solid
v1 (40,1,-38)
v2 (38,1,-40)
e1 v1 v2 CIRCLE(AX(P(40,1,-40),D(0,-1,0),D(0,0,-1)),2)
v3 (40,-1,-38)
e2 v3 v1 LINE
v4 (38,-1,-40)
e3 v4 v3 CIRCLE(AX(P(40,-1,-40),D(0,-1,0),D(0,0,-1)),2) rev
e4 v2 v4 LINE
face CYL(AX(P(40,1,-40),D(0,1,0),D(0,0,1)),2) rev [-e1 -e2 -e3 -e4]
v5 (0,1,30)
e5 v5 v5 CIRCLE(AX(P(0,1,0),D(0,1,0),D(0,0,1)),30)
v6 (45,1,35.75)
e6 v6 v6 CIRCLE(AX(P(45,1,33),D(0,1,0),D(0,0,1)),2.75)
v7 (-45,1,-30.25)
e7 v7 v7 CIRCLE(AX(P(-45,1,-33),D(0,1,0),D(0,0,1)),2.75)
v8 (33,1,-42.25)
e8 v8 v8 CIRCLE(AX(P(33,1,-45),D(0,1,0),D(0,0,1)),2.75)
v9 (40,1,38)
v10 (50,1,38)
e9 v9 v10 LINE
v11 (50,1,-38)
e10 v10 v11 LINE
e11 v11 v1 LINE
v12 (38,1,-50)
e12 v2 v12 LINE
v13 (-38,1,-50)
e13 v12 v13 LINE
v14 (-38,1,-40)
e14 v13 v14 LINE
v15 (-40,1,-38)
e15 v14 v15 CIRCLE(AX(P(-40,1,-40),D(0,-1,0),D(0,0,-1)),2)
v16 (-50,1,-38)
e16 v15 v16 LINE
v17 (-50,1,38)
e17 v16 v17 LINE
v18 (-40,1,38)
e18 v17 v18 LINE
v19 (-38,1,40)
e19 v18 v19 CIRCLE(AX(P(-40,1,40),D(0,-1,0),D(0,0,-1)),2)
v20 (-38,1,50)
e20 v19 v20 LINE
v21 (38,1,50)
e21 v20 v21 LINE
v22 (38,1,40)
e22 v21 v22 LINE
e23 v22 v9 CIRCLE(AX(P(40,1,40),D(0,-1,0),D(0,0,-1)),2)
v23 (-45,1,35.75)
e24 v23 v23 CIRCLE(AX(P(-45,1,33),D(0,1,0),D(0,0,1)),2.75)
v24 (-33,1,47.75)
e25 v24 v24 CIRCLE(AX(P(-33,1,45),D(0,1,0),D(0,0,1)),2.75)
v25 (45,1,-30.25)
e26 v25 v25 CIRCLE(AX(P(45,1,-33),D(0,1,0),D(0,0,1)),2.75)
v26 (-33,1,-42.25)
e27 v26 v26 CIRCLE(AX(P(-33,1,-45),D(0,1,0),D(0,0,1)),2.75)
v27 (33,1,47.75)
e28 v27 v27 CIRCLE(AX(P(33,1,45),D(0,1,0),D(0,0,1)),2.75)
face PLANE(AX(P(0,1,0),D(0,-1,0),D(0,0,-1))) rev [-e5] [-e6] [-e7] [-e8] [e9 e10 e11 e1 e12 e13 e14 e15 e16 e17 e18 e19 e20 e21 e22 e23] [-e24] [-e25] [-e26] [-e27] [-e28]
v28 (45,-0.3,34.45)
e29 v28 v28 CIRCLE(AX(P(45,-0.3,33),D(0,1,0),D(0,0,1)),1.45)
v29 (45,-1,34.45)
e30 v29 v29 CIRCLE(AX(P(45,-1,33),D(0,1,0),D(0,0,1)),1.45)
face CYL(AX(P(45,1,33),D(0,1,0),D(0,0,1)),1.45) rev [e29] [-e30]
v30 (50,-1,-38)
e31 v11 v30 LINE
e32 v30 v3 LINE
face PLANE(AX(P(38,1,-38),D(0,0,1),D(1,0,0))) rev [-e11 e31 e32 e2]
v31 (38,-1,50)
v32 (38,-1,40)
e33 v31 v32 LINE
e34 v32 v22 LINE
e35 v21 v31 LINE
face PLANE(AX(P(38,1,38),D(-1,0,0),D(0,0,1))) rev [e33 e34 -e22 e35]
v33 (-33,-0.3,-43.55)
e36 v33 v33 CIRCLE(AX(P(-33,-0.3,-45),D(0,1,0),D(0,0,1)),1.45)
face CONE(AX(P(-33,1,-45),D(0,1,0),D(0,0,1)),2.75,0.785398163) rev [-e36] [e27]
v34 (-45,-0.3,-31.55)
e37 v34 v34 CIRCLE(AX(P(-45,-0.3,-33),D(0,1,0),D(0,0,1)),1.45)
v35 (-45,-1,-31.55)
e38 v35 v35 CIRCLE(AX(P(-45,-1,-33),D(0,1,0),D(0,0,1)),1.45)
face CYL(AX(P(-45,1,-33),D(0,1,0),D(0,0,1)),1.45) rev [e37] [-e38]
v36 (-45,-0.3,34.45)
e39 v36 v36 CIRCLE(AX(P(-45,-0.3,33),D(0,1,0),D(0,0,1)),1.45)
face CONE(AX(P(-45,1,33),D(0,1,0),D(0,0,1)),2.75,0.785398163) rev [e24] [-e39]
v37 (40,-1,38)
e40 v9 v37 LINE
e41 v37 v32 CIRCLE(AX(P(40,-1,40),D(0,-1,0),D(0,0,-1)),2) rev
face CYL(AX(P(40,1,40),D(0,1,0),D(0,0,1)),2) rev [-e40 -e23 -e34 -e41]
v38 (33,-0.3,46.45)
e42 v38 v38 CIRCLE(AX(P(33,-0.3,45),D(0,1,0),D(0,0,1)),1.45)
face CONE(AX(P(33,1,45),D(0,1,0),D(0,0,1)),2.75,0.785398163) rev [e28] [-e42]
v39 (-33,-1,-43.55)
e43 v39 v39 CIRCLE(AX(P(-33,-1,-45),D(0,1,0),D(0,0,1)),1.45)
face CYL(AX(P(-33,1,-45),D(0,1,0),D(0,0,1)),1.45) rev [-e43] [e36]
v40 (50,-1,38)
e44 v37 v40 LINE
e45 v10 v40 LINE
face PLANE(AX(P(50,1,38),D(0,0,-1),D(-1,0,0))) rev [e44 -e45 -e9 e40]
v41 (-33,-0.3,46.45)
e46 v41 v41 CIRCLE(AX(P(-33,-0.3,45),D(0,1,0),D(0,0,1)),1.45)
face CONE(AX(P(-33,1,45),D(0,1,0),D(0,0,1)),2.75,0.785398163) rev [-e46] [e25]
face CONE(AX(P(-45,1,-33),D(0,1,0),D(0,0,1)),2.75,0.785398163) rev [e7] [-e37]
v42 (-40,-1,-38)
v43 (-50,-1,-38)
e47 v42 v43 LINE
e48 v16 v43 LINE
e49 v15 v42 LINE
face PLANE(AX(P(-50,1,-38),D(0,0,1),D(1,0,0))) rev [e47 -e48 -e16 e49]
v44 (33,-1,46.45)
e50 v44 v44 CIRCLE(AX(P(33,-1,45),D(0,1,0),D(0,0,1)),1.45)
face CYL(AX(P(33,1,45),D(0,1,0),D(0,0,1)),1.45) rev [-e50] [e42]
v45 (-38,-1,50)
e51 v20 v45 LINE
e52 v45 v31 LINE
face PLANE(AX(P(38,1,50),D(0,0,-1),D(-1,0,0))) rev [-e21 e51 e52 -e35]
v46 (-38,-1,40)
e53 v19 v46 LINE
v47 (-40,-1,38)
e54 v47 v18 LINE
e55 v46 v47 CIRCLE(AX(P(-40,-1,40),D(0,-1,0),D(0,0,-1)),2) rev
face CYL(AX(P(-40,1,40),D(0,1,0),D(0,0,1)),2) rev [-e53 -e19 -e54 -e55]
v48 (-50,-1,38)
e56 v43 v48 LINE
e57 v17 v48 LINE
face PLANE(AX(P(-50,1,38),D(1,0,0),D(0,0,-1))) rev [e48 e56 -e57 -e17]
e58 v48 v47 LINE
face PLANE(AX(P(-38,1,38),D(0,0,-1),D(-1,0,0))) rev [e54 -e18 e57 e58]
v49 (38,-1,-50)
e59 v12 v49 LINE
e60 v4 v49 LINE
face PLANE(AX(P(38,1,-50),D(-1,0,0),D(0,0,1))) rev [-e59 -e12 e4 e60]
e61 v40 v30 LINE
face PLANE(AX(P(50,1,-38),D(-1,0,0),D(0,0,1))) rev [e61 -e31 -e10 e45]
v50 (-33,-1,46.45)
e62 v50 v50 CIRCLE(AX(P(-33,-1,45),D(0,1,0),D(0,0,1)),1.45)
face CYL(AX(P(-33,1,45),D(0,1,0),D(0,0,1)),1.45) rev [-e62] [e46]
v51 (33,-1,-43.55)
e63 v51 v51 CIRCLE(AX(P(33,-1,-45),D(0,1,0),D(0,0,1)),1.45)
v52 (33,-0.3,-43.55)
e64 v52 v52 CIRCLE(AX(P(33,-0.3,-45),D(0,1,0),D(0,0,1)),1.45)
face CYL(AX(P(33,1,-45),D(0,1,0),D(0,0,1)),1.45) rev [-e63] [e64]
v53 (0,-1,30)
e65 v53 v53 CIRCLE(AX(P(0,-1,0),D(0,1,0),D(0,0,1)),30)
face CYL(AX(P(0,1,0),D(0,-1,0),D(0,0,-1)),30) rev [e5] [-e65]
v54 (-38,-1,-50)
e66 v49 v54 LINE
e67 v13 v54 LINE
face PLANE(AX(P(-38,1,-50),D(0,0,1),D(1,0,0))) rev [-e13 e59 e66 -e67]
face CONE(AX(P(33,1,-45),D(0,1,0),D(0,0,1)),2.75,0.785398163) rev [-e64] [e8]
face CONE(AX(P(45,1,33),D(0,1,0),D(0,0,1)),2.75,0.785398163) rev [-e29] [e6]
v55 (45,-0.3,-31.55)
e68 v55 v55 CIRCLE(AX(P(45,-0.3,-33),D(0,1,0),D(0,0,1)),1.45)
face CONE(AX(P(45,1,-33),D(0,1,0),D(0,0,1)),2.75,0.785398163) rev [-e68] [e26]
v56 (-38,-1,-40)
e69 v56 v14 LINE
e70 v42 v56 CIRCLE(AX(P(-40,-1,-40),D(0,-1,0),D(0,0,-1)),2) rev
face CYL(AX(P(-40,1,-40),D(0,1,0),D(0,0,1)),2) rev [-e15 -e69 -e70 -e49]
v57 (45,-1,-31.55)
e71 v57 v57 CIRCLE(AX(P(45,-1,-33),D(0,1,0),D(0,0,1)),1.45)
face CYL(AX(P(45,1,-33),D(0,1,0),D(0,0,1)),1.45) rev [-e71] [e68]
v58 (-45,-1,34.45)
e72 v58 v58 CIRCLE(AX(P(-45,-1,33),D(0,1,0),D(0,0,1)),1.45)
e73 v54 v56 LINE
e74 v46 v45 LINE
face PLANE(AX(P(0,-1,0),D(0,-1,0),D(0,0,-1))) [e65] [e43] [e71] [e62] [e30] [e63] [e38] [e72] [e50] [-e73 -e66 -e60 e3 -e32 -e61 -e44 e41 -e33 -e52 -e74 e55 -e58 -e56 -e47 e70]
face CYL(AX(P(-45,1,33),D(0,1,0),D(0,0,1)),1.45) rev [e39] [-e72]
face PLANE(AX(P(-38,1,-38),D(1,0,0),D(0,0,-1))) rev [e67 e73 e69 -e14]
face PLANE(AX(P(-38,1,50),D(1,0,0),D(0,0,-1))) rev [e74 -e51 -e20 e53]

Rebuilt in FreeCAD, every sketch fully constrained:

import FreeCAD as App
import Part
import Sketcher

V = App.Vector
Q = App.Units.Quantity


def edges_at(feature, points):
    """Names of the edges that pass closest to the given points."""
    edges = feature.Shape.Edges
    near = lambda p: min(range(len(edges)), key=lambda i: edges[i].distToShape(Part.Vertex(*p))[0])
    return sorted({f"Edge{near(p) + 1}" for p in points})

doc = App.newDocument("Part")
body = doc.addObject("PartDesign::Body", "Body")

# Sketch on XZ plane
sketch1 = doc.addObject("Sketcher::SketchObject", "Sketch")
body.addObject(sketch1)
sketch1.AttachmentSupport = (doc.XZ_Plane, [""])
sketch1.MapMode = "FlatFace"
sketch1.addGeometry(Part.LineSegment(V(-50, -38, 0), V(-50, 38, 0)), False)
sketch1.addGeometry(Part.LineSegment(V(-50, 38, 0), V(-38, 38, 0)), False)
sketch1.addGeometry(Part.LineSegment(V(-38, 38, 0), V(-38, 50, 0)), False)
sketch1.addGeometry(Part.LineSegment(V(-38, 50, 0), V(38, 50, 0)), False)
sketch1.addGeometry(Part.LineSegment(V(38, 50, 0), V(38, 38, 0)), False)
sketch1.addGeometry(Part.LineSegment(V(38, 38, 0), V(50, 38, 0)), False)
sketch1.addGeometry(Part.LineSegment(V(50, 38, 0), V(50, -38, 0)), False)
sketch1.addGeometry(Part.LineSegment(V(50, -38, 0), V(38, -38, 0)), False)
sketch1.addGeometry(Part.LineSegment(V(38, -38, 0), V(38, -50, 0)), False)
sketch1.addGeometry(Part.LineSegment(V(38, -50, 0), V(-38, -50, 0)), False)
sketch1.addGeometry(Part.LineSegment(V(-38, -50, 0), V(-38, -38, 0)), False)
sketch1.addGeometry(Part.LineSegment(V(-38, -38, 0), V(-50, -38, 0)), False)
sketch1.addGeometry(Part.Circle(V(0, 0, 0), V(0, 0, 1), 30), False)
sketch1.addConstraint(Sketcher.Constraint("Coincident", 0, 2, 1, 1))
sketch1.addConstraint(Sketcher.Constraint("Coincident", 1, 2, 2, 1))
sketch1.addConstraint(Sketcher.Constraint("Coincident", 2, 2, 3, 1))
sketch1.addConstraint(Sketcher.Constraint("Coincident", 3, 2, 4, 1))
sketch1.addConstraint(Sketcher.Constraint("Coincident", 4, 2, 5, 1))
sketch1.addConstraint(Sketcher.Constraint("Coincident", 5, 2, 6, 1))
sketch1.addConstraint(Sketcher.Constraint("Coincident", 6, 2, 7, 1))
sketch1.addConstraint(Sketcher.Constraint("Coincident", 7, 2, 8, 1))
sketch1.addConstraint(Sketcher.Constraint("Coincident", 8, 2, 9, 1))
sketch1.addConstraint(Sketcher.Constraint("Coincident", 9, 2, 10, 1))
sketch1.addConstraint(Sketcher.Constraint("Coincident", 10, 2, 11, 1))
sketch1.addConstraint(Sketcher.Constraint("Coincident", 11, 2, 0, 1))
sketch1.addConstraint(Sketcher.Constraint("Vertical", 0))
sketch1.addConstraint(Sketcher.Constraint("Horizontal", 1))
sketch1.addConstraint(Sketcher.Constraint("Vertical", 2))
sketch1.addConstraint(Sketcher.Constraint("Horizontal", 3))
sketch1.addConstraint(Sketcher.Constraint("Vertical", 4))
sketch1.addConstraint(Sketcher.Constraint("Horizontal", 5))
sketch1.addConstraint(Sketcher.Constraint("Vertical", 6))
sketch1.addConstraint(Sketcher.Constraint("Horizontal", 7))
sketch1.addConstraint(Sketcher.Constraint("Vertical", 8))
sketch1.addConstraint(Sketcher.Constraint("Horizontal", 9))
sketch1.addConstraint(Sketcher.Constraint("Vertical", 10))
sketch1.addConstraint(Sketcher.Constraint("Horizontal", 11))
sketch1.addConstraint(Sketcher.Constraint("Coincident", 12, 3, -1, 1))
sketch1.addConstraint(Sketcher.Constraint("Symmetric", 0, 2, 6, 2, -1, 1))
sketch1.addConstraint(Sketcher.Constraint("Symmetric", 2, 2, 8, 2, -1, 1))
sketch1.addConstraint(Sketcher.Constraint("Symmetric", 4, 2, 10, 2, -1, 1))
sketch1.addConstraint(Sketcher.Constraint("Symmetric", 1, 2, 4, 2, -2))
sketch1.addConstraint(Sketcher.Constraint("Equal", 9, 0))
sketch1.addConstraint(Sketcher.Constraint("Equal", 11, 2))
sketch1.addConstraint(Sketcher.Constraint("Diameter", 12, 60.0))
sketch1.addConstraint(Sketcher.Constraint("DistanceX", 1, 1, 1, 2, 12.0))
sketch1.addConstraint(Sketcher.Constraint("DistanceX", 3, 1, 3, 2, 76.0))
pad1 = doc.addObject("PartDesign::Pad", "Pad")
body.addObject(pad1)
pad1.Profile = sketch1
pad1.Length = 2
pad1.Midplane = True
doc.recompute()

fillet = doc.addObject("PartDesign::Fillet", "Fillet")
body.addObject(fillet)
fillet.Base = (pad1, edges_at(pad1, [
    (-38, 0, -38),
    (38, 0, -38),
    (38, 0, 38),
    (-38, 0, 38),
]))
fillet.Radius = 2

# Sketch on YZ plane
sketch2 = doc.addObject("Sketcher::SketchObject", "Sketch001")
body.addObject(sketch2)
sketch2.AttachmentSupport = (doc.YZ_Plane, [""])
sketch2.MapMode = "FlatFace"
sketch2.AttachmentOffset = App.Placement(V(0, 0, -33), App.Rotation())
sketch2.addGeometry(Part.LineSegment(V(-1, -45, 0), V(1, -45, 0)), False)
sketch2.addGeometry(Part.LineSegment(V(1, -45, 0), V(1, -42.2, 0)), False)
sketch2.addGeometry(Part.LineSegment(V(1, -42.2, 0), V(-0.3, -43.5, 0)), False)
sketch2.addGeometry(Part.LineSegment(V(-0.3, -43.5, 0), V(-1, -43.5, 0)), False)
sketch2.addGeometry(Part.LineSegment(V(-1, -43.5, 0), V(-1, -45, 0)), False)
sketch2.addGeometry(Part.LineSegment(V(1, -45, 0), V(-1, -45, 0)), True)  # axis
sketch2.addConstraint(Sketcher.Constraint("Coincident", 0, 2, 1, 1))
sketch2.addConstraint(Sketcher.Constraint("Coincident", 1, 2, 2, 1))
sketch2.addConstraint(Sketcher.Constraint("Coincident", 2, 2, 3, 1))
sketch2.addConstraint(Sketcher.Constraint("Coincident", 3, 2, 4, 1))
sketch2.addConstraint(Sketcher.Constraint("Coincident", 4, 2, 0, 1))
sketch2.addConstraint(Sketcher.Constraint("Horizontal", 0))
sketch2.addConstraint(Sketcher.Constraint("Vertical", 1))
sketch2.addConstraint(Sketcher.Constraint("Horizontal", 3))
sketch2.addConstraint(Sketcher.Constraint("Vertical", 4))
sketch2.addConstraint(Sketcher.Constraint("Horizontal", 5))
sketch2.addConstraint(Sketcher.Constraint("Coincident", 5, 1, 0, 2))
sketch2.addConstraint(Sketcher.Constraint("Vertical", 3, 2, 5, 2))
sketch2.addConstraint(Sketcher.Constraint("DistanceX", 0, 1, 0, 2, 2.0))
sketch2.addConstraint(Sketcher.Constraint("Angle", 2, Q("-135 deg")))
sketch2.addConstraint(Sketcher.Constraint("DistanceX", 3, 2, 3, 1, 0.7))
sketch2.addConstraint(Sketcher.Constraint("DistanceX", -1, 1, 0, 2, 1.0))
sketch2.addConstraint(Sketcher.Constraint("DistanceY", 0, 2, -1, 1, 45.0))
sketch2.addConstraint(Sketcher.Constraint("DistanceY", 1, 1, 1, 2, 2.75))
groove = doc.addObject("PartDesign::Groove", "Groove")
body.addObject(groove)
groove.Profile = sketch2
groove.ReferenceAxis = (sketch2, ["Axis0"])
groove.Angle = 360
doc.recompute()

datumline = doc.addObject("PartDesign::Line", "DatumLine")
body.addObject(datumline)
datumline.Placement = App.Placement(V(0, 0, 0), App.Rotation(V(0, 0, 1), V(-0.707106781, 0, 0.707106781)))
linearpattern = doc.addObject("PartDesign::LinearPattern", "LinearPattern")
body.addObject(linearpattern)
linearpattern.Originals = [groove]
linearpattern.Direction = (datumline, [""])
linearpattern.Mode = "offset"
linearpattern.Offset = 16.970563
linearpattern.Occurrences = 2
body.Tip = linearpattern
doc.recompute()

datumline2 = doc.addObject("PartDesign::Line", "DatumLine001")
body.addObject(datumline2)
datumline2.Placement = App.Placement(V(0, 0, 0), App.Rotation(V(0, 0, 1), V(-0.152057184, 0, 0.988371698)))
linearpattern2 = doc.addObject("PartDesign::LinearPattern", "LinearPattern001")
body.addObject(linearpattern2)
linearpattern2.Originals = [groove]
linearpattern2.Direction = (datumline2, [""])
linearpattern2.Mode = "offset"
linearpattern2.Offset = 78.917679
linearpattern2.Occurrences = 2
body.Tip = linearpattern2
doc.recompute()

linearpattern3 = doc.addObject("PartDesign::LinearPattern", "LinearPattern002")
body.addObject(linearpattern3)
linearpattern3.Originals = [groove]
linearpattern3.Direction = (doc.Z_Axis, [""])
linearpattern3.Mode = "offset"
linearpattern3.Offset = 90
linearpattern3.Occurrences = 2
body.Tip = linearpattern3
doc.recompute()

datumline3 = doc.addObject("PartDesign::Line", "DatumLine002")
body.addObject(datumline3)
datumline3.Placement = App.Placement(V(0, 0, 0), App.Rotation(V(0, 0, 1), V(0.591363664, 0, 0.806404996)))
linearpattern4 = doc.addObject("PartDesign::LinearPattern", "LinearPattern003")
body.addObject(linearpattern4)
linearpattern4.Originals = [groove]
linearpattern4.Direction = (datumline3, [""])
linearpattern4.Mode = "offset"
linearpattern4.Offset = 111.606451
linearpattern4.Occurrences = 2
body.Tip = linearpattern4
doc.recompute()

datumline4 = doc.addObject("PartDesign::Line", "DatumLine003")
body.addObject(datumline4)
datumline4.Placement = App.Placement(V(0, 0, 0), App.Rotation(V(0, 0, 1), V(0.707106781, 0, 0.707106781)))
linearpattern5 = doc.addObject("PartDesign::LinearPattern", "LinearPattern004")
body.addObject(linearpattern5)
linearpattern5.Originals = [groove]
linearpattern5.Direction = (datumline4, [""])
linearpattern5.Mode = "offset"
linearpattern5.Offset = 110.308658
linearpattern5.Occurrences = 2
body.Tip = linearpattern5
doc.recompute()

datumline5 = doc.addObject("PartDesign::Line", "DatumLine004")
body.addObject(datumline5)
datumline5.Placement = App.Placement(V(0, 0, 0), App.Rotation(V(0, 0, 1), V(0.988371698, 0, 0.152057184)))
linearpattern6 = doc.addObject("PartDesign::LinearPattern", "LinearPattern005")
body.addObject(linearpattern6)
linearpattern6.Originals = [groove]
linearpattern6.Direction = (datumline5, [""])
linearpattern6.Mode = "offset"
linearpattern6.Offset = 78.917679
linearpattern6.Occurrences = 2
body.Tip = linearpattern6
doc.recompute()

linearpattern7 = doc.addObject("PartDesign::LinearPattern", "LinearPattern006")
body.addObject(linearpattern7)
linearpattern7.Originals = [groove]
linearpattern7.Direction = (doc.X_Axis, [""])
linearpattern7.Mode = "offset"
linearpattern7.Offset = 66
linearpattern7.Occurrences = 2
body.Tip = linearpattern7

doc.recompute()
